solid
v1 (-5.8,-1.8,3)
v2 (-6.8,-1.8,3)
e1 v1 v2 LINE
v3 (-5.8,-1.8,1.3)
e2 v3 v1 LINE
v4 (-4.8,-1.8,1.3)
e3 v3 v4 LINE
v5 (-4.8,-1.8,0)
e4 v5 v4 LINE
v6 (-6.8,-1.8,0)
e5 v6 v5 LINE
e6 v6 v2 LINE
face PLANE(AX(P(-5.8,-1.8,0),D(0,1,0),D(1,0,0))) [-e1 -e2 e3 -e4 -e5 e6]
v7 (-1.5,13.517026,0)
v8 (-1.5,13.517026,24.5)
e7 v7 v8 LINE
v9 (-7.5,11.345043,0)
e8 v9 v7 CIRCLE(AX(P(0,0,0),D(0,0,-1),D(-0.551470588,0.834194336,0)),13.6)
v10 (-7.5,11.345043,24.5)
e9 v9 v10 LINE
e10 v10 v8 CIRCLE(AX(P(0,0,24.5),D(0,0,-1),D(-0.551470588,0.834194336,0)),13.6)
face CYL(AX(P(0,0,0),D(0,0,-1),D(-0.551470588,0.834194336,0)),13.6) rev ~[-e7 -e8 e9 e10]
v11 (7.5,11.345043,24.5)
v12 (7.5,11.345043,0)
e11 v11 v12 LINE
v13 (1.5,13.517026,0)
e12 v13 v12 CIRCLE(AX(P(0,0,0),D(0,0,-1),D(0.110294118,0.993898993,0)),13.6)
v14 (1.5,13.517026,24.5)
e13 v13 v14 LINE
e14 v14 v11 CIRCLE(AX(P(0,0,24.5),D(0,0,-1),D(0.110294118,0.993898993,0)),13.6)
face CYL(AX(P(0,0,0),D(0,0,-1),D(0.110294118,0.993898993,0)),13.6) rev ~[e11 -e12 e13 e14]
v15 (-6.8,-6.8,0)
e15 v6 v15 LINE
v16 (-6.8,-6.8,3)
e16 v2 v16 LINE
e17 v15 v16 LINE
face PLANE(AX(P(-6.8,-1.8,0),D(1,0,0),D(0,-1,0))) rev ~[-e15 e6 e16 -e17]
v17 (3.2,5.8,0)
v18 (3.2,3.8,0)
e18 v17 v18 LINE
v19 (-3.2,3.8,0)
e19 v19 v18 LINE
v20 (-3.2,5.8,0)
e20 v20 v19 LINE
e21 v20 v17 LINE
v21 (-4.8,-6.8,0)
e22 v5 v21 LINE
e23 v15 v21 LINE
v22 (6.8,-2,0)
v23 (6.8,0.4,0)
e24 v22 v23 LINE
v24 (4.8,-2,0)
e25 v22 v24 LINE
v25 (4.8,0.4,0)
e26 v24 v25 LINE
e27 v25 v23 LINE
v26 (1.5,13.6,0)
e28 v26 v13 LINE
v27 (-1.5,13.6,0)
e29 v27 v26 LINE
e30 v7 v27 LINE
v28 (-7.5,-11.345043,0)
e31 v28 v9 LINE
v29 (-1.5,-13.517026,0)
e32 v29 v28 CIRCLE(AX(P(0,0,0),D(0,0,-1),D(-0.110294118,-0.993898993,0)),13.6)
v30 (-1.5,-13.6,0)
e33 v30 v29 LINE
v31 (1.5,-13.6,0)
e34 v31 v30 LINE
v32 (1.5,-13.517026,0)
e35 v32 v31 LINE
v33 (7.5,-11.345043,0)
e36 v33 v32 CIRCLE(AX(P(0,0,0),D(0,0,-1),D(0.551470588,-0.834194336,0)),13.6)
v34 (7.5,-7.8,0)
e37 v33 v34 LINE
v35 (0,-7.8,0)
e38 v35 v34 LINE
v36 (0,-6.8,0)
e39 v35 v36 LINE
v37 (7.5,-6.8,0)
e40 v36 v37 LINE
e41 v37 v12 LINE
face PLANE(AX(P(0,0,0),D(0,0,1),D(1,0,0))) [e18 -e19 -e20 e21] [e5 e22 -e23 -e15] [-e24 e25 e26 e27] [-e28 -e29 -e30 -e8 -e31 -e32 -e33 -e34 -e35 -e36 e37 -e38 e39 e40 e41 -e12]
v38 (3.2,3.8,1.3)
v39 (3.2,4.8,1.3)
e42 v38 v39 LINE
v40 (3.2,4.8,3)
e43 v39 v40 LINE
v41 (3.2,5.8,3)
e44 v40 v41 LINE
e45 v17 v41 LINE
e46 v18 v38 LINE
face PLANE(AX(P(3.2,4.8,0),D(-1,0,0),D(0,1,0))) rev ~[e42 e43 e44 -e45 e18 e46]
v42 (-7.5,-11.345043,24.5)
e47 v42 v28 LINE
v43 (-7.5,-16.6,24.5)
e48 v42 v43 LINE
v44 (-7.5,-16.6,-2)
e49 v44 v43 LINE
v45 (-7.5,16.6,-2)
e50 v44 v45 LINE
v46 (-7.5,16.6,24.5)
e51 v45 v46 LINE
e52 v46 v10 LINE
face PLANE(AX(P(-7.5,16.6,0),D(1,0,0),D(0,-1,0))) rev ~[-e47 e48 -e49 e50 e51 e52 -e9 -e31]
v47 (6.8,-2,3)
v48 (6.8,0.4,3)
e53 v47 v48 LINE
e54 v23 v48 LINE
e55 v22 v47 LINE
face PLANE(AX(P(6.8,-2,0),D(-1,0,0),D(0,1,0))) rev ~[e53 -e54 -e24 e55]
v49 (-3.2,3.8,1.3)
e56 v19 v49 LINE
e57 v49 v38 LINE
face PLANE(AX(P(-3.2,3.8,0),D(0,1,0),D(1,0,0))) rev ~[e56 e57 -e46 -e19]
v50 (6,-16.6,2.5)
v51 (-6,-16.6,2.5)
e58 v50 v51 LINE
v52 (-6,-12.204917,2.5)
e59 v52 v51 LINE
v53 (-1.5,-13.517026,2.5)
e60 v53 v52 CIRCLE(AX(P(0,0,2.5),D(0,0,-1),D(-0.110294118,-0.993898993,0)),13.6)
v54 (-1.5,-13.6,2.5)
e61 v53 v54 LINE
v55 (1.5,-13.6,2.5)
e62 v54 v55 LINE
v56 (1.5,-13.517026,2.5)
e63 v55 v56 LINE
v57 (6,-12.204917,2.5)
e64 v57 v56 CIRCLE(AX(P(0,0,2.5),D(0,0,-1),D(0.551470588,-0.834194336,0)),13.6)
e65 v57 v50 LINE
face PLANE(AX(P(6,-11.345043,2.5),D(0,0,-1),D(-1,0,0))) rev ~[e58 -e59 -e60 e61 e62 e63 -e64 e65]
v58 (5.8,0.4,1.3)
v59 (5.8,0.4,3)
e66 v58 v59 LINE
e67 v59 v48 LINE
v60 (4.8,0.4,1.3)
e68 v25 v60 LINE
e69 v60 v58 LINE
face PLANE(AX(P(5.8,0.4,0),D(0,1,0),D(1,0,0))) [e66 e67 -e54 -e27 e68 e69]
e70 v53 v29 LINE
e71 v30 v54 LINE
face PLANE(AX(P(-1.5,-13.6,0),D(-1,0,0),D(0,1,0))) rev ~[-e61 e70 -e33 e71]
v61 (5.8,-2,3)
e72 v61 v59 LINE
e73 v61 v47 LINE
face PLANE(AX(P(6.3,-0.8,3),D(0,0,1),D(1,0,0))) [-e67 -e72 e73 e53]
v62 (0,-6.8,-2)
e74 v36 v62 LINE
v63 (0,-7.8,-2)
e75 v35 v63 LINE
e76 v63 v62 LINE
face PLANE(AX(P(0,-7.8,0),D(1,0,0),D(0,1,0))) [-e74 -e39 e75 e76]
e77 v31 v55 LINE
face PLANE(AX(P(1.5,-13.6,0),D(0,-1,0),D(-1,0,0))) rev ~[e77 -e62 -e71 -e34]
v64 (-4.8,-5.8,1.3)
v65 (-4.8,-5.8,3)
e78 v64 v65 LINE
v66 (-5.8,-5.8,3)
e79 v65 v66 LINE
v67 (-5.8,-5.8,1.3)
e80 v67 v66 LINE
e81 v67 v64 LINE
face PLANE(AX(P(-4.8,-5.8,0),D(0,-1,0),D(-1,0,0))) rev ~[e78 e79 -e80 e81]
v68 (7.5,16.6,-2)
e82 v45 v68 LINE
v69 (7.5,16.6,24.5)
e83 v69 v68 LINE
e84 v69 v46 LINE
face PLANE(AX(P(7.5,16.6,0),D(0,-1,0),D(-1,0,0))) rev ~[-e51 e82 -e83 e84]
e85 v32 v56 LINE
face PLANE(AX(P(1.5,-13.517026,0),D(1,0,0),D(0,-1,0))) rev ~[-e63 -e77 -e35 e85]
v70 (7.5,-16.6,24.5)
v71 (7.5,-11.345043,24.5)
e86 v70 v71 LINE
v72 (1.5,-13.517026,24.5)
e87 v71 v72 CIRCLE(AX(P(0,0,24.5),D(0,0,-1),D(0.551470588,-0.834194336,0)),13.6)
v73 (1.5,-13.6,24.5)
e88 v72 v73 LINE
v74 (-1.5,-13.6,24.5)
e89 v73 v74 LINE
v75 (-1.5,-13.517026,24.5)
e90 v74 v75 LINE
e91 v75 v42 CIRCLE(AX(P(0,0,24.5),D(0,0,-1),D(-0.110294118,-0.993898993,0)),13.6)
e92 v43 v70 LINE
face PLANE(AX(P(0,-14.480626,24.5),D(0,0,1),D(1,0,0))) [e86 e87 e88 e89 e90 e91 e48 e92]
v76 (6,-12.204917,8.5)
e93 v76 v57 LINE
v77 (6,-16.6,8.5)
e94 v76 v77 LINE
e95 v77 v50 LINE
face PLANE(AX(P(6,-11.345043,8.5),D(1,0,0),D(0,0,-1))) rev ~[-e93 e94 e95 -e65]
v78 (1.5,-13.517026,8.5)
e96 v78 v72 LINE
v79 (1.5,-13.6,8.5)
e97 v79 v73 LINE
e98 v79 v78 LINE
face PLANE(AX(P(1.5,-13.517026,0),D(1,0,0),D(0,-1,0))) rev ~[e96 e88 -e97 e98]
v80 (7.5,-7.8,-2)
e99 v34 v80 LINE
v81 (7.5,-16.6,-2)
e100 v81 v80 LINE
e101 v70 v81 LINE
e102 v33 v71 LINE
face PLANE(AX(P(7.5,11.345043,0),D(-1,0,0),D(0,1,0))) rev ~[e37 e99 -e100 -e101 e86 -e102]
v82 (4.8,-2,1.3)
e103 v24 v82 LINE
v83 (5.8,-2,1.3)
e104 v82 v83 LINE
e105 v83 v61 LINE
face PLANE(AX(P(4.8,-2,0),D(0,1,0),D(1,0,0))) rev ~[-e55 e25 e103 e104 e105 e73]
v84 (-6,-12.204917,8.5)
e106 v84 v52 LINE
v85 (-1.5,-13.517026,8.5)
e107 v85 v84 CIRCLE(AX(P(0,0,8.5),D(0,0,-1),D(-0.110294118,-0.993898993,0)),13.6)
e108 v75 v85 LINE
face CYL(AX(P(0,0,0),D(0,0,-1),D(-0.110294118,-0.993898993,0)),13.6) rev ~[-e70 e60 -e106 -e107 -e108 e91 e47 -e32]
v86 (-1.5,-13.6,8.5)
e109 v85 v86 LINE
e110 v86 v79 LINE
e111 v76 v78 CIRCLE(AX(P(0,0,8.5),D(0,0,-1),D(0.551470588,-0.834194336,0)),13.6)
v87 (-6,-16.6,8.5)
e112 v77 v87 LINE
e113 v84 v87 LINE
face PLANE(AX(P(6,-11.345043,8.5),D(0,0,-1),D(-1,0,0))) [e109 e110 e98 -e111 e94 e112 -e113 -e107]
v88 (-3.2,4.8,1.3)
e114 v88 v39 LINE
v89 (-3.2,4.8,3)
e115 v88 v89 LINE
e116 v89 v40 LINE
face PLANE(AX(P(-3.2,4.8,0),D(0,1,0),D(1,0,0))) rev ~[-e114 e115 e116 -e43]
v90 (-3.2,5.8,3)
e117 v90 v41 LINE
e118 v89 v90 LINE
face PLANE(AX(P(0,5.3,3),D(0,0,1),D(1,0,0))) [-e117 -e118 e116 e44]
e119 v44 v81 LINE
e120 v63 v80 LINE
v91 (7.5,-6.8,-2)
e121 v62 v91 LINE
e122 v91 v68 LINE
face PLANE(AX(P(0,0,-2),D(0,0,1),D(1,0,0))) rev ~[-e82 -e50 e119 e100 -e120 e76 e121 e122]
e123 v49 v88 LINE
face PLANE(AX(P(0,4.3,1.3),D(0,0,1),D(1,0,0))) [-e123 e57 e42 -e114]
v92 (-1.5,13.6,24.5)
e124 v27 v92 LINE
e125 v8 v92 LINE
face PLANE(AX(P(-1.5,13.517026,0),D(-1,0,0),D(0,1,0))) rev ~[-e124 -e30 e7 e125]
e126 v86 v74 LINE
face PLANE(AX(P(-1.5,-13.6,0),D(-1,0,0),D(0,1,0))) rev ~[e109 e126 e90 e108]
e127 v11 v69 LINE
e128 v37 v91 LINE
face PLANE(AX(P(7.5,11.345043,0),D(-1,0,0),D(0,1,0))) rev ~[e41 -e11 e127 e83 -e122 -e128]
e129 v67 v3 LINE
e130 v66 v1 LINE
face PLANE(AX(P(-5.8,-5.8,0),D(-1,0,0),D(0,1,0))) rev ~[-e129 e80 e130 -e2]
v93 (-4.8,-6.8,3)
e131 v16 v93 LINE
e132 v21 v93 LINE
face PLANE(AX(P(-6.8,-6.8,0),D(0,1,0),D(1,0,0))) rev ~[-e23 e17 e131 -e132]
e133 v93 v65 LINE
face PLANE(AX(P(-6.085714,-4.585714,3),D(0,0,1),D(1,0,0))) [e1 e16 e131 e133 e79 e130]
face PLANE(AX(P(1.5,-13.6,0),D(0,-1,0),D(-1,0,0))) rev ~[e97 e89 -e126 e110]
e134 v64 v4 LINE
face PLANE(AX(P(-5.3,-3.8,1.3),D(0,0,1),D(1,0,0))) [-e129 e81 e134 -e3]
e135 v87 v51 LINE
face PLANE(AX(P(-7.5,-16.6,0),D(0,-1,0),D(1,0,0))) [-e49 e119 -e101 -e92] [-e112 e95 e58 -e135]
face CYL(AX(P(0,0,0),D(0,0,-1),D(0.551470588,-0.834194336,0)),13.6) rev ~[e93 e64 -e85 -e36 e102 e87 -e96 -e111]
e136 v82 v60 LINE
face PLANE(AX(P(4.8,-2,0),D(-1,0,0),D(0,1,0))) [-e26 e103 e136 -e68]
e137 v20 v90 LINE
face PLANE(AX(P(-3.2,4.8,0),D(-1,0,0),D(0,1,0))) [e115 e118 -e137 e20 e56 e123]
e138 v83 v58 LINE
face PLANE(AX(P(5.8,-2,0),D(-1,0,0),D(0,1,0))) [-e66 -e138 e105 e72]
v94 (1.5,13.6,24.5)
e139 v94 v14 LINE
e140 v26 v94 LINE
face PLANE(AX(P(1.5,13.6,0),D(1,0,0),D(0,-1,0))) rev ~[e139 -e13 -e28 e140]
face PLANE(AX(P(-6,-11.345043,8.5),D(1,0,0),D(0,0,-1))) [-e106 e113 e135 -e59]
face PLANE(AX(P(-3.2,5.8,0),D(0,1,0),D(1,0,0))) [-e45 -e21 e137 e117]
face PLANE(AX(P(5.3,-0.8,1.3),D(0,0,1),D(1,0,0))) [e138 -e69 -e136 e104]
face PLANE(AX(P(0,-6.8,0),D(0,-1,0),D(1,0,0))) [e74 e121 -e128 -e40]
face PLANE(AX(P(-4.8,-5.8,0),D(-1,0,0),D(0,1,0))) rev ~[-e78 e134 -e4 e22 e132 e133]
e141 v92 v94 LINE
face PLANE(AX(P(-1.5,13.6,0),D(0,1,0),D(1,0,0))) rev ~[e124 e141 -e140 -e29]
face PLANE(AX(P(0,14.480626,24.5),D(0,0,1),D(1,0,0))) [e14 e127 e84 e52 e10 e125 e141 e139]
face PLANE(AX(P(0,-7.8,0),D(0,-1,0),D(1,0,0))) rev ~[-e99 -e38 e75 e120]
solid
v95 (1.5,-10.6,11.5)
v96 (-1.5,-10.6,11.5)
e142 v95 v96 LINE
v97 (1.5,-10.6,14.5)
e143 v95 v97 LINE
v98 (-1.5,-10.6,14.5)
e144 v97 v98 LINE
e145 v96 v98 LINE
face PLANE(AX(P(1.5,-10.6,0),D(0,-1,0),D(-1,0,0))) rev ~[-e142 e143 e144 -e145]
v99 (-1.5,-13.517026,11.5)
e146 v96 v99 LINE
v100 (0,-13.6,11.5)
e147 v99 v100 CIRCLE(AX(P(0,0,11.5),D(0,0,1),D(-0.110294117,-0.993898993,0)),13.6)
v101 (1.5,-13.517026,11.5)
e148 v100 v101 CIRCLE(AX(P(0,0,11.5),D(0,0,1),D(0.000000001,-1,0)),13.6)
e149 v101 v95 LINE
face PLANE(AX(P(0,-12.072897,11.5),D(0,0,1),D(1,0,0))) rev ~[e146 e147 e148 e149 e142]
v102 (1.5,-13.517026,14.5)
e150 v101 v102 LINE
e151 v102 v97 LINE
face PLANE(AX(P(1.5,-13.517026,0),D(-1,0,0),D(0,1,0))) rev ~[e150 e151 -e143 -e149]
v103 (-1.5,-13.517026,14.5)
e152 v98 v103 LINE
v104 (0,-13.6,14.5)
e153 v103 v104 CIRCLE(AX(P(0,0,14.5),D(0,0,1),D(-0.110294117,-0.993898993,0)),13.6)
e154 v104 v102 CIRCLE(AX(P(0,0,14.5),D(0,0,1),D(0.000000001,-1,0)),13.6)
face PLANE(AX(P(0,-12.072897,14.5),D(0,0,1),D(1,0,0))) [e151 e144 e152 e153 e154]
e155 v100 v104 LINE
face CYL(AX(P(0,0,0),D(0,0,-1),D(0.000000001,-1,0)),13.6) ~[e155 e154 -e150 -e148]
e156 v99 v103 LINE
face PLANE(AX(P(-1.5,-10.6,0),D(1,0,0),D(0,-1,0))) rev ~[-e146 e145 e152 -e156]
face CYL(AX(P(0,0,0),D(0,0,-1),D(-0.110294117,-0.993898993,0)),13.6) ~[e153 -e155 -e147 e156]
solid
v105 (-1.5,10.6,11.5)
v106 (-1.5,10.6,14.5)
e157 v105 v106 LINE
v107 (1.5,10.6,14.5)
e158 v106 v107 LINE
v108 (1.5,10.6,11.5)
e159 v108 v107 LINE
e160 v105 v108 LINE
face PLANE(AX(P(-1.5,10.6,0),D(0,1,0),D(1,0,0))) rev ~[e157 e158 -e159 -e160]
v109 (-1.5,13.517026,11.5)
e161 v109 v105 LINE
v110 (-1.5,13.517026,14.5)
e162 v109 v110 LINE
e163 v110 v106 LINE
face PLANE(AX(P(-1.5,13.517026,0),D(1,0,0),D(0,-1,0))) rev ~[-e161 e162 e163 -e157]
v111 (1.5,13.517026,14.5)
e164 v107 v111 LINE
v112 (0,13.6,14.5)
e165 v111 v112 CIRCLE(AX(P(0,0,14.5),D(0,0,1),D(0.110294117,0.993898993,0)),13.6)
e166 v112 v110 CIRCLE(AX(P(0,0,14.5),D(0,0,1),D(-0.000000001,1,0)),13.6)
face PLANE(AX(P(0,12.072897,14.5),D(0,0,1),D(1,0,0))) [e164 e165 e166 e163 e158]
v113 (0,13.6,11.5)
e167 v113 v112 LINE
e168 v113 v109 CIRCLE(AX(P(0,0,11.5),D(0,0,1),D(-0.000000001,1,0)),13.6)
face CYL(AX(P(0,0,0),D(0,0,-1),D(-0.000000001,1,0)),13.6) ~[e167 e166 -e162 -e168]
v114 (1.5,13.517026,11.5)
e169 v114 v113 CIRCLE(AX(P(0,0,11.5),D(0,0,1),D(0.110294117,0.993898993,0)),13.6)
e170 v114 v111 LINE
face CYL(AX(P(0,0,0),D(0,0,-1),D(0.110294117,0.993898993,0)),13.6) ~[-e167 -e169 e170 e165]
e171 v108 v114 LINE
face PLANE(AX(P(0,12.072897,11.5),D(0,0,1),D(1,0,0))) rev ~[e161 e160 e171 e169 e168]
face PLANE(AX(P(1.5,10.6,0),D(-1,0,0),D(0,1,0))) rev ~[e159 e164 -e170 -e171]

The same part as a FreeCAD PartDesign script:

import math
import FreeCAD as App
import Part
import Sketcher
Q = App.Units.Quantity


def add_polygon(sketch, points):
    """Adds a closed chain of lines whose ends are joined by coincident constraints."""
    first, n = sketch.GeometryCount, len(points)
    for a, b in zip(points, points[1:] + points[:1]):
        sketch.addGeometry(Part.LineSegment(App.Vector(*a, 0), App.Vector(*b, 0)), False)
    for i in range(n):
        sketch.addConstraint(Sketcher.Constraint("Coincident", first + i, 2, first + (i + 1) % n, 1))

doc = App.newDocument("Part")
body = doc.addObject("PartDesign::Body", "Body")

# Sketch on XY plane
sketch1 = doc.addObject("Sketcher::SketchObject", "Sketch")
body.addObject(sketch1)
sketch1.AttachmentSupport = (doc.XY_Plane, [""])
sketch1.MapMode = "FlatFace"
sketch1.addGeometry([
    Part.LineSegment(App.Vector(7.5, 16.6, 0), App.Vector(-7.5, 16.6, 0)),  # 0
    Part.LineSegment(App.Vector(-7.5, 16.6, 0), App.Vector(-7.5, 11.35, 0)),  # 1
    Part.ArcOfCircle(Part.Circle(App.Vector(0, 0, 0), App.Vector(0, 0, 1), 13.6), math.radians(96), math.radians(123)),  # 2
    Part.LineSegment(App.Vector(-1.5, 13.52, 0), App.Vector(-1.5, 13.6, 0)),  # 3
    Part.LineSegment(App.Vector(-1.5, 13.6, 0), App.Vector(1.5, 13.6, 0)),  # 4
    Part.LineSegment(App.Vector(1.5, 13.6, 0), App.Vector(1.5, 13.52, 0)),  # 5
    Part.ArcOfCircle(Part.Circle(App.Vector(0, 0, 0), App.Vector(0, 0, 1), 13.6), math.radians(57), math.radians(84)),  # 6
    Part.LineSegment(App.Vector(7.5, 11.35, 0), App.Vector(7.5, 16.6, 0)),  # 7
], False)
sketch1.addConstraint([
    Sketcher.Constraint("Coincident", 0, 2, 1, 1),
    Sketcher.Constraint("Coincident", 1, 2, 2, 2),
    Sketcher.Constraint("Coincident", 2, 1, 3, 1),
    Sketcher.Constraint("Coincident", 3, 2, 4, 1),
    Sketcher.Constraint("Coincident", 4, 2, 5, 1),
    Sketcher.Constraint("Coincident", 5, 2, 6, 2),
    Sketcher.Constraint("Coincident", 6, 1, 7, 1),
    Sketcher.Constraint("Coincident", 7, 2, 0, 1),
    Sketcher.Constraint("Horizontal", 0),
    Sketcher.Constraint("Vertical", 1),
    Sketcher.Constraint("Vertical", 3),
    Sketcher.Constraint("Horizontal", 4),
    Sketcher.Constraint("Vertical", 5),
    Sketcher.Constraint("Vertical", 7),
    Sketcher.Constraint("Coincident", 2, 3, -1, 1),
    Sketcher.Constraint("Coincident", 6, 3, -1, 1),
    Sketcher.Constraint("Equal", 2, 6),
    Sketcher.Constraint("Horizontal", 2, 1, 5, 2),
    Sketcher.Constraint("Horizontal", 1, 2, 6, 1),
    Sketcher.Constraint("Radius", 2, Q("13.6 mm")),
    Sketcher.Constraint("DistanceX", 0, 2, 0, 1, Q("15 mm")),
    Sketcher.Constraint("DistanceX", 4, 1, 4, 2, Q("3 mm")),
    Sketcher.Constraint("DistanceY", 3, 2, 0, 2, Q("3 mm")),
    Sketcher.Constraint("DistanceY", -1, 1, 0, 2, Q("16.6 mm")),
])
pad1 = doc.addObject("PartDesign::Pad", "Pad")
body.addObject(pad1)
pad1.Profile = sketch1
pad1.Length = 14.5
body2 = doc.addObject("PartDesign::Body", "Body001")

# Sketch on XY plane
sketch2 = doc.addObject("Sketcher::SketchObject", "Sketch001")
body2.addObject(sketch2)
sketch2.AttachmentSupport = (doc.getObject("XY_Plane001"), [""])
sketch2.MapMode = "FlatFace"
sketch2.addGeometry([
    Part.ArcOfCircle(Part.Circle(App.Vector(0, 0, 0), App.Vector(0, 0, 1), 13.6), math.radians(90), math.radians(96.33)),  # 0
    Part.LineSegment(App.Vector(-1.5, 13.5, 0), App.Vector(-1.5, 10.6, 0)),  # 1
    Part.LineSegment(App.Vector(-1.5, 10.6, 0), App.Vector(1.5, 10.6, 0)),  # 2
    Part.LineSegment(App.Vector(1.5, 10.6, 0), App.Vector(1.5, 13.5, 0)),  # 3
    Part.ArcOfCircle(Part.Circle(App.Vector(0, 0, 0), App.Vector(0, 0, 1), 13.6), math.radians(83.67), math.radians(90)),  # 4
], False)
sketch2.addConstraint([
    Sketcher.Constraint("Coincident", 0, 2, 1, 1),
    Sketcher.Constraint("Coincident", 1, 2, 2, 1),
    Sketcher.Constraint("Coincident", 2, 2, 3, 1),
    Sketcher.Constraint("Coincident", 3, 2, 4, 1),
    Sketcher.Constraint("Tangent", 4, 2, 0, 1),
    Sketcher.Constraint("Vertical", 1),
    Sketcher.Constraint("Horizontal", 2),
    Sketcher.Constraint("Vertical", 3),
    Sketcher.Constraint("Coincident", 0, 3, -1, 1),
    Sketcher.Constraint("Equal", 0, 4),
    Sketcher.Constraint("PointOnObject", 4, 2, -2),
    Sketcher.Constraint("Horizontal", 0, 2, 3, 2),
    Sketcher.Constraint("Radius", 0, Q("13.6 mm")),
    Sketcher.Constraint("DistanceX", 2, 1, 2, 2, Q("3 mm")),
    Sketcher.Constraint("DistanceY", 1, 2, 4, 2, Q("3 mm")),
])
pad2 = doc.addObject("PartDesign::Pad", "Pad001")
body2.addObject(pad2)
pad2.Profile = sketch2
pad2.Length = 14.5
body3 = doc.addObject("PartDesign::Body", "Body002")

# Sketch on XY plane
sketch3 = doc.addObject("Sketcher::SketchObject", "Sketch002")
body3.addObject(sketch3)
sketch3.AttachmentSupport = (doc.getObject("XY_Plane002"), [""])
sketch3.MapMode = "FlatFace"
sketch3.addGeometry([
    Part.LineSegment(App.Vector(-1.5, -10.6, 0), App.Vector(-1.5, -13.5, 0)),  # 0
    Part.ArcOfCircle(Part.Circle(App.Vector(0, 0, 0), App.Vector(0, 0, 1), 13.6), math.radians(-96.33), math.radians(-90)),  # 1
    Part.ArcOfCircle(Part.Circle(App.Vector(0, 0, 0), App.Vector(0, 0, 1), 13.6), math.radians(-90), math.radians(-83.67)),  # 2
    Part.LineSegment(App.Vector(1.5, -13.5, 0), App.Vector(1.5, -10.6, 0)),  # 3
    Part.LineSegment(App.Vector(1.5, -10.6, 0), App.Vector(-1.5, -10.6, 0)),  # 4
], False)
sketch3.addConstraint([
    Sketcher.Constraint("Coincident", 0, 2, 1, 1),
    Sketcher.Constraint("Tangent", 1, 2, 2, 1),
    Sketcher.Constraint("Coincident", 2, 2, 3, 1),
    Sketcher.Constraint("Coincident", 3, 2, 4, 1),
    Sketcher.Constraint("Coincident", 4, 2, 0, 1),
    Sketcher.Constraint("Vertical", 0),
    Sketcher.Constraint("Vertical", 3),
    Sketcher.Constraint("Horizontal", 4),
    Sketcher.Constraint("Coincident", 1, 3, -1, 1),
    Sketcher.Constraint("Equal", 1, 2),
    Sketcher.Constraint("PointOnObject", 1, 2, -2),
    Sketcher.Constraint("Horizontal", 0, 2, 2, 2),
    Sketcher.Constraint("Radius", 1, Q("13.6 mm")),
    Sketcher.Constraint("DistanceX", 4, 2, 4, 1, Q("3 mm")),
    Sketcher.Constraint("DistanceY", 1, 2, 3, 2, Q("3 mm")),
])
pad3 = doc.addObject("PartDesign::Pad", "Pad002")
body3.addObject(pad3)
pad3.Profile = sketch3
pad3.Length = 14.5
body4 = doc.addObject("PartDesign::Body", "Body003")

# Sketch on XY plane
sketch4 = doc.addObject("Sketcher::SketchObject", "Sketch003")
body4.addObject(sketch4)
sketch4.AttachmentSupport = (doc.getObject("XY_Plane003"), [""])
sketch4.MapMode = "FlatFace"
sketch4.addGeometry([
    Part.ArcOfCircle(Part.Circle(App.Vector(0, 0, 0), App.Vector(0, 0, 1), 13.6), math.radians(-123), math.radians(-96)),  # 0
    Part.LineSegment(App.Vector(-7.5, -11.35, 0), App.Vector(-7.5, -16.6, 0)),  # 1
    Part.LineSegment(App.Vector(-7.5, -16.6, 0), App.Vector(7.5, -16.6, 0)),  # 2
    Part.LineSegment(App.Vector(7.5, -16.6, 0), App.Vector(7.5, -11.35, 0)),  # 3
    Part.ArcOfCircle(Part.Circle(App.Vector(0, 0, 0), App.Vector(0, 0, 1), 13.6), math.radians(-84), math.radians(-57)),  # 4
    Part.LineSegment(App.Vector(1.5, -13.52, 0), App.Vector(1.5, -13.6, 0)),  # 5
    Part.LineSegment(App.Vector(1.5, -13.6, 0), App.Vector(-1.5, -13.6, 0)),  # 6
    Part.LineSegment(App.Vector(-1.5, -13.6, 0), App.Vector(-1.5, -13.52, 0)),  # 7
], False)
sketch4.addConstraint([
    Sketcher.Constraint("Coincident", 0, 1, 1, 1),
    Sketcher.Constraint("Coincident", 1, 2, 2, 1),
    Sketcher.Constraint("Coincident", 2, 2, 3, 1),
    Sketcher.Constraint("Coincident", 3, 2, 4, 2),
    Sketcher.Constraint("Coincident", 4, 1, 5, 1),
    Sketcher.Constraint("Coincident", 5, 2, 6, 1),
    Sketcher.Constraint("Coincident", 6, 2, 7, 1),
    Sketcher.Constraint("Coincident", 7, 2, 0, 2),
    Sketcher.Constraint("Vertical", 1),
    Sketcher.Constraint("Horizontal", 2),
    Sketcher.Constraint("Vertical", 3),
    Sketcher.Constraint("Vertical", 5),
    Sketcher.Constraint("Horizontal", 6),
    Sketcher.Constraint("Vertical", 7),
    Sketcher.Constraint("Coincident", 0, 3, -1, 1),
    Sketcher.Constraint("Coincident", 4, 3, -1, 1),
    Sketcher.Constraint("Equal", 0, 4),
    Sketcher.Constraint("Horizontal", 0, 1, 3, 2),
    Sketcher.Constraint("Horizontal", 4, 1, 7, 2),
    Sketcher.Constraint("Radius", 0, Q("13.6 mm")),
    Sketcher.Constraint("DistanceX", 2, 1, 2, 2, Q("15 mm")),
    Sketcher.Constraint("DistanceX", 6, 2, 6, 1, Q("3 mm")),
    Sketcher.Constraint("DistanceY", 2, 2, 5, 2, Q("3 mm")),
    Sketcher.Constraint("DistanceY", 1, 2, -1, 1, Q("16.6 mm")),
])
pad4 = doc.addObject("PartDesign::Pad", "Pad003")
body4.addObject(pad4)
pad4.Profile = sketch4
pad4.Length = 14.5
body.AllowCompound = True
doc.recompute()

boolean = doc.addObject("PartDesign::Boolean", "Boolean")
body.addObject(boolean)
boolean.Type = "Fuse"
boolean.addObjects([body4])

# Sketch on XY plane
sketch5 = doc.addObject("Sketcher::SketchObject", "Sketch004")
body.addObject(sketch5)
sketch5.AttachmentSupport = (doc.XY_Plane, [""])
sketch5.MapMode = "FlatFace"
add_polygon(sketch5, [(-8, 17), (-8, -17), (8, -17), (8, 17)])  # lines 0-3
sketch5.addConstraint([
    Sketcher.Constraint("Vertical", 0),
    Sketcher.Constraint("Horizontal", 1),
    Sketcher.Constraint("Vertical", 2),
    Sketcher.Constraint("Horizontal", 3),
    Sketcher.Constraint("Symmetric", 0, 2, 2, 2, -1, 1),
    Sketcher.Constraint("DistanceX", 1, 1, 1, 2, Q("15 mm")),
    Sketcher.Constraint("DistanceY", 0, 2, 0, 1, Q("33.2 mm")),
])
pad5 = doc.addObject("PartDesign::Pad", "Pad004")
body.addObject(pad5)
pad5.Profile = sketch5
pad5.Length = 2
pad5.Reversed = True

# Sketch on XY plane
sketch6 = doc.addObject("Sketcher::SketchObject", "Sketch005")
body.addObject(sketch6)
sketch6.AttachmentSupport = (doc.XY_Plane, [""])
sketch6.MapMode = "FlatFace"
sketch6.addGeometry([
    Part.LineSegment(App.Vector(7.5, 16.6, 0), App.Vector(-7.5, 16.6, 0)),  # 0
    Part.LineSegment(App.Vector(-7.5, 16.6, 0), App.Vector(-7.5, 11.35, 0)),  # 1
    Part.ArcOfCircle(Part.Circle(App.Vector(0, 0, 0), App.Vector(0, 0, 1), 13.6), math.radians(96), math.radians(123)),  # 2
    Part.LineSegment(App.Vector(-1.5, 13.52, 0), App.Vector(-1.5, 13.6, 0)),  # 3
    Part.LineSegment(App.Vector(-1.5, 13.6, 0), App.Vector(1.5, 13.6, 0)),  # 4
    Part.LineSegment(App.Vector(1.5, 13.6, 0), App.Vector(1.5, 13.52, 0)),  # 5
    Part.ArcOfCircle(Part.Circle(App.Vector(0, 0, 0), App.Vector(0, 0, 1), 13.6), math.radians(57), math.radians(84)),  # 6
    Part.LineSegment(App.Vector(7.5, 11.35, 0), App.Vector(7.5, 16.6, 0)),  # 7
    Part.ArcOfCircle(Part.Circle(App.Vector(0, 0, 0), App.Vector(0, 0, 1), 13.6), math.radians(-123), math.radians(-96)),  # 8
    Part.LineSegment(App.Vector(-7.5, -11.35, 0), App.Vector(-7.5, -16.6, 0)),  # 9
    Part.LineSegment(App.Vector(-7.5, -16.6, 0), App.Vector(7.5, -16.6, 0)),  # 10
    Part.LineSegment(App.Vector(7.5, -16.6, 0), App.Vector(7.5, -11.35, 0)),  # 11
    Part.ArcOfCircle(Part.Circle(App.Vector(0, 0, 0), App.Vector(0, 0, 1), 13.6), math.radians(-84), math.radians(-57)),  # 12
    Part.LineSegment(App.Vector(1.5, -13.52, 0), App.Vector(1.5, -13.6, 0)),  # 13
    Part.LineSegment(App.Vector(1.5, -13.6, 0), App.Vector(-1.5, -13.6, 0)),  # 14
    Part.LineSegment(App.Vector(-1.5, -13.6, 0), App.Vector(-1.5, -13.52, 0)),  # 15
], False)
sketch6.addConstraint([
    Sketcher.Constraint("Coincident", 0, 2, 1, 1),
    Sketcher.Constraint("Coincident", 1, 2, 2, 2),
    Sketcher.Constraint("Coincident", 2, 1, 3, 1),
    Sketcher.Constraint("Coincident", 3, 2, 4, 1),
    Sketcher.Constraint("Coincident", 4, 2, 5, 1),
    Sketcher.Constraint("Coincident", 5, 2, 6, 2),
    Sketcher.Constraint("Coincident", 6, 1, 7, 1),
    Sketcher.Constraint("Coincident", 7, 2, 0, 1),
    Sketcher.Constraint("Coincident", 8, 1, 9, 1),
    Sketcher.Constraint("Coincident", 9, 2, 10, 1),
    Sketcher.Constraint("Coincident", 10, 2, 11, 1),
    Sketcher.Constraint("Coincident", 11, 2, 12, 2),
    Sketcher.Constraint("Coincident", 12, 1, 13, 1),
    Sketcher.Constraint("Coincident", 13, 2, 14, 1),
    Sketcher.Constraint("Coincident", 14, 2, 15, 1),
    Sketcher.Constraint("Coincident", 15, 2, 8, 2),
    Sketcher.Constraint("Horizontal", 0),
    Sketcher.Constraint("Vertical", 1),
    Sketcher.Constraint("Vertical", 3),
    Sketcher.Constraint("Horizontal", 4),
    Sketcher.Constraint("Vertical", 5),
    Sketcher.Constraint("Vertical", 7),
    Sketcher.Constraint("Vertical", 9),
    Sketcher.Constraint("Horizontal", 10),
    Sketcher.Constraint("Vertical", 11),
    Sketcher.Constraint("Vertical", 13),
    Sketcher.Constraint("Horizontal", 14),
    Sketcher.Constraint("Vertical", 15),
    Sketcher.Constraint("Coincident", 2, 3, -1, 1),
    Sketcher.Constraint("Coincident", 6, 3, -1, 1),
    Sketcher.Constraint("Coincident", 8, 3, -1, 1),
    Sketcher.Constraint("Coincident", 12, 3, -1, 1),
    Sketcher.Constraint("Equal", 2, 6),
    Sketcher.Constraint("Equal", 6, 8),
    Sketcher.Constraint("Equal", 8, 12),
    Sketcher.Constraint("Symmetric", 7, 2, 9, 2, -1, 1),
    Sketcher.Constraint("Symmetric", 3, 2, 13, 2, -1, 1),
    Sketcher.Constraint("Horizontal", 2, 1, 5, 2),
    Sketcher.Constraint("Horizontal", 1, 2, 6, 1),
    Sketcher.Constraint("Horizontal", 8, 1, 11, 2),
    Sketcher.Constraint("Horizontal", 12, 1, 15, 2),
    Sketcher.Constraint("Radius", 2, Q("13.6 mm")),
    Sketcher.Constraint("DistanceX", 0, 2, 0, 1, Q("15 mm")),
    Sketcher.Constraint("DistanceX", 4, 1, 4, 2, Q("3 mm")),
    Sketcher.Constraint("DistanceY", 3, 2, 0, 2, Q("3 mm")),
    Sketcher.Constraint("DistanceY", -1, 1, 0, 2, Q("16.6 mm")),
])
pad6 = doc.addObject("PartDesign::Pad", "Pad005")
body.addObject(pad6)
pad6.Profile = sketch6
pad6.Length = 24.5

# Sketch on XY plane
sketch7 = doc.addObject("Sketcher::SketchObject", "Sketch006")
body.addObject(sketch7)
sketch7.AttachmentSupport = (doc.XY_Plane, [""])
sketch7.MapMode = "FlatFace"
add_polygon(sketch7, [(-5.8, -1.8), (-5.8, -5.8), (-4.8, -5.8), (-4.8, -1.8)])  # lines 0-3
add_polygon(sketch7, [(-3.2, 4.8), (-3.2, 3.8), (3.2, 3.8), (3.2, 4.8)])  # lines 4-7
add_polygon(sketch7, [(4.8, 0.4), (4.8, -2), (5.8, -2), (5.8, 0.4)])  # lines 8-11
sketch7.addConstraint([
    Sketcher.Constraint("Vertical", 0),
    Sketcher.Constraint("Horizontal", 1),
    Sketcher.Constraint("Vertical", 2),
    Sketcher.Constraint("Horizontal", 3),
    Sketcher.Constraint("Vertical", 4),
    Sketcher.Constraint("Horizontal", 5),
    Sketcher.Constraint("Vertical", 6),
    Sketcher.Constraint("Horizontal", 7),
    Sketcher.Constraint("Vertical", 8),
    Sketcher.Constraint("Horizontal", 9),
    Sketcher.Constraint("Vertical", 10),
    Sketcher.Constraint("Horizontal", 11),
    Sketcher.Constraint("Equal", 3, 9),
    Sketcher.Constraint("Equal", 11, 4),
    Sketcher.Constraint("DistanceX", 1, 1, 1, 2, Q("1 mm")),
    Sketcher.Constraint("DistanceY", 0, 2, 0, 1, Q("4 mm")),
    Sketcher.Constraint("DistanceX", 5, 1, 5, 2, Q("6.4 mm")),
    Sketcher.Constraint("DistanceY", 8, 2, 8, 1, Q("2.4 mm")),
    Sketcher.Constraint("DistanceY", 8, 2, -1, 1, Q("2 mm")),
    Sketcher.Constraint("DistanceX", 2, 2, 5, 2, Q("8 mm")),
    Sketcher.Constraint("DistanceX", 4, 2, 8, 2, Q("8 mm")),
    Sketcher.Constraint("DistanceX", 0, 2, -1, 1, Q("5.8 mm")),
    Sketcher.Constraint("DistanceY", 0, 2, -1, 1, Q("5.8 mm")),
    Sketcher.Constraint("DistanceY", -1, 1, 4, 2, Q("3.8 mm")),
])
pad7 = doc.addObject("PartDesign::Pad", "Pad006")
body.addObject(pad7)
pad7.Profile = sketch7
pad7.Length = 1.3

# Sketch on XY plane
sketch8 = doc.addObject("Sketcher::SketchObject", "Sketch007")
body.addObject(sketch8)
sketch8.AttachmentSupport = (doc.XY_Plane, [""])
sketch8.MapMode = "FlatFace"
add_polygon(sketch8, [(-3.2, 5.8), (-3.2, 4.8), (3.2, 4.8), (3.2, 5.8)])  # lines 0-3
add_polygon(sketch8, [(-5.8, -1.8), (-6.8, -1.8), (-6.8, -6.8), (-4.8, -6.8), (-4.8, -5.8), (-5.8, -5.8)])  # lines 4-9
add_polygon(sketch8, [(5.8, 0.4), (5.8, -2), (6.8, -2), (6.8, 0.4)])  # lines 10-13
sketch8.addConstraint([
    Sketcher.Constraint("Vertical", 0),
    Sketcher.Constraint("Horizontal", 1),
    Sketcher.Constraint("Vertical", 2),
    Sketcher.Constraint("Horizontal", 3),
    Sketcher.Constraint("Horizontal", 4),
    Sketcher.Constraint("Vertical", 5),
    Sketcher.Constraint("Horizontal", 6),
    Sketcher.Constraint("Vertical", 7),
    Sketcher.Constraint("Horizontal", 8),
    Sketcher.Constraint("Vertical", 9),
    Sketcher.Constraint("Vertical", 10),
    Sketcher.Constraint("Horizontal", 11),
    Sketcher.Constraint("Vertical", 12),
    Sketcher.Constraint("Horizontal", 13),
    Sketcher.Constraint("Equal", 4, 8),
    Sketcher.Constraint("Equal", 8, 11),
    Sketcher.Constraint("Equal", 13, 0),
    Sketcher.Constraint("Equal", 2, 7),
    Sketcher.Constraint("DistanceX", 4, 2, 4, 1, Q("1 mm")),
    Sketcher.Constraint("DistanceY", 5, 2, 5, 1, Q("5 mm")),
    Sketcher.Constraint("DistanceX", 1, 1, 1, 2, Q("6.4 mm")),
    Sketcher.Constraint("DistanceY", 10, 2, 10, 1, Q("2.4 mm")),
    Sketcher.Constraint("DistanceY", 10, 2, -1, 1, Q("2 mm")),
    Sketcher.Constraint("DistanceX", 4, 2, 1, 2, Q("10 mm")),
    Sketcher.Constraint("DistanceX", 0, 2, 10, 2, Q("9 mm")),
    Sketcher.Constraint("DistanceX", 0, 2, -1, 1, Q("3.2 mm")),
    Sketcher.Constraint("DistanceY", -1, 1, 0, 2, Q("4.8 mm")),
    Sketcher.Constraint("DistanceY", 4, 2, -1, 1, Q("1.8 mm")),
])
pad8 = doc.addObject("PartDesign::Pad", "Pad007")
body.addObject(pad8)
pad8.Profile = sketch8
pad8.Length = 3

# Sketch on XY plane
sketch9 = doc.addObject("Sketcher::SketchObject", "Sketch008")
body.addObject(sketch9)
sketch9.AttachmentSupport = (doc.XY_Plane, [""])
sketch9.MapMode = "FlatFace"
add_polygon(sketch9, [(0, -6.8), (0, -7.8), (7.5, -7.8), (7.5, -6.8)])  # lines 0-3
sketch9.addConstraint([
    Sketcher.Constraint("Vertical", 0),
    Sketcher.Constraint("Horizontal", 1),
    Sketcher.Constraint("Vertical", 2),
    Sketcher.Constraint("Horizontal", 3),
    Sketcher.Constraint("PointOnObject", 0, 2, -2),
    Sketcher.Constraint("DistanceY", 0, 2, 0, 1, Q("1 mm")),
    Sketcher.Constraint("DistanceX", 1, 1, 1, 2, Q("7.5 mm")),
    Sketcher.Constraint("DistanceY", 0, 2, -1, 1, Q("7.8 mm")),
])
pocket1 = doc.addObject("PartDesign::Pocket", "Pocket")
body.addObject(pocket1)
pocket1.Profile = sketch9
pocket1.Type = "ThroughAll"

# Sketch on XZ plane
sketch10 = doc.addObject("Sketcher::SketchObject", "Sketch009")
body.addObject(sketch10)
sketch10.AttachmentSupport = (doc.XZ_Plane, [""])
sketch10.MapMode = "FlatFace"
sketch10.AttachmentOffset = App.Placement(App.Vector(0, 0, 11.345043), App.Rotation())
add_polygon(sketch10, [(6, 2), (6, 8), (-6, 8), (-6, 2)])  # lines 0-3
sketch10.addConstraint([
    Sketcher.Constraint("Vertical", 0),
    Sketcher.Constraint("Horizontal", 1),
    Sketcher.Constraint("Vertical", 2),
    Sketcher.Constraint("Horizontal", 3),
    Sketcher.Constraint("DistanceX", 1, 2, 1, 1, Q("12 mm")),
    Sketcher.Constraint("DistanceY", 0, 1, 0, 2, Q("6 mm")),
    Sketcher.Constraint("DistanceX", -1, 1, 0, 2, Q("6 mm")),
    Sketcher.Constraint("DistanceY", -1, 1, 0, 2, Q("8.5 mm")),
])
pocket2 = doc.addObject("PartDesign::Pocket", "Pocket001")
body.addObject(pocket2)
pocket2.Profile = sketch10
pocket2.Length = 5.254957
pocket2.Reversed = True
body5 = doc.addObject("PartDesign::Body", "Body004")
body5.AllowCompound = True

# Sketch on XY plane
sketch11 = doc.addObject("Sketcher::SketchObject", "Sketch010")
body5.addObject(sketch11)
sketch11.AttachmentSupport = (doc.getObject("XY_Plane004"), [""])
sketch11.MapMode = "FlatFace"
sketch11.addGeometry([
    Part.LineSegment(App.Vector(-1.5, -10.6, 0), App.Vector(-1.5, -13.5, 0)),  # 0
    Part.ArcOfCircle(Part.Circle(App.Vector(0, 0, 0), App.Vector(0, 0, 1), 13.6), math.radians(-96.33), math.radians(-90)),  # 1
    Part.ArcOfCircle(Part.Circle(App.Vector(0, 0, 0), App.Vector(0, 0, 1), 13.6), math.radians(-90), math.radians(-83.67)),  # 2
    Part.LineSegment(App.Vector(1.5, -13.5, 0), App.Vector(1.5, -10.6, 0)),  # 3
    Part.LineSegment(App.Vector(1.5, -10.6, 0), App.Vector(-1.5, -10.6, 0)),  # 4
    Part.ArcOfCircle(Part.Circle(App.Vector(0, 0, 0), App.Vector(0, 0, 1), 13.6), math.radians(90), math.radians(96.33)),  # 5
    Part.LineSegment(App.Vector(-1.5, 13.5, 0), App.Vector(-1.5, 10.6, 0)),  # 6
    Part.LineSegment(App.Vector(-1.5, 10.6, 0), App.Vector(1.5, 10.6, 0)),  # 7
    Part.LineSegment(App.Vector(1.5, 10.6, 0), App.Vector(1.5, 13.5, 0)),  # 8
    Part.ArcOfCircle(Part.Circle(App.Vector(0, 0, 0), App.Vector(0, 0, 1), 13.6), math.radians(83.67), math.radians(90)),  # 9
], False)
sketch11.addConstraint([
    Sketcher.Constraint("Coincident", 0, 2, 1, 1),
    Sketcher.Constraint("Tangent", 1, 2, 2, 1),
    Sketcher.Constraint("Coincident", 2, 2, 3, 1),
    Sketcher.Constraint("Coincident", 3, 2, 4, 1),
    Sketcher.Constraint("Coincident", 4, 2, 0, 1),
    Sketcher.Constraint("Coincident", 5, 2, 6, 1),
    Sketcher.Constraint("Coincident", 6, 2, 7, 1),
    Sketcher.Constraint("Coincident", 7, 2, 8, 1),
    Sketcher.Constraint("Coincident", 8, 2, 9, 1),
    Sketcher.Constraint("Tangent", 9, 2, 5, 1),
    Sketcher.Constraint("Vertical", 0),
    Sketcher.Constraint("Vertical", 3),
    Sketcher.Constraint("Horizontal", 4),
    Sketcher.Constraint("Vertical", 6),
    Sketcher.Constraint("Horizontal", 7),
    Sketcher.Constraint("Vertical", 8),
    Sketcher.Constraint("Coincident", 1, 3, -1, 1),
    Sketcher.Constraint("Coincident", 5, 3, -1, 1),
    Sketcher.Constraint("Equal", 1, 2),
    Sketcher.Constraint("Equal", 2, 5),
    Sketcher.Constraint("Equal", 5, 9),
    Sketcher.Constraint("Symmetric", 3, 2, 6, 2, -1, 1),
    Sketcher.Constraint("PointOnObject", 1, 2, -2),
    Sketcher.Constraint("PointOnObject", 9, 2, -2),
    Sketcher.Constraint("Horizontal", 0, 2, 2, 2),
    Sketcher.Constraint("Horizontal", 5, 2, 8, 2),
    Sketcher.Constraint("Radius", 1, Q("13.6 mm")),
    Sketcher.Constraint("DistanceX", 4, 2, 4, 1, Q("3 mm")),
    Sketcher.Constraint("DistanceY", 1, 2, 3, 2, Q("3 mm")),
])
pad9 = doc.addObject("PartDesign::Pad", "Pad008")
body5.addObject(pad9)
pad9.Profile = sketch11
pad9.Length = 11.5
doc.recompute()

body6 = doc.addObject("PartDesign::Body", "Body005")
body6.BaseFeature = body5
boolean2 = doc.addObject("PartDesign::Boolean", "Boolean001")
body2.addObject(boolean2)
boolean2.Type = "Cut"
boolean2.addObjects([body6])
doc.recompute()

boolean3 = doc.addObject("PartDesign::Boolean", "Boolean002")
body3.addObject(boolean3)
boolean3.Type = "Cut"
boolean3.addObjects([body5])

doc.recompute()
